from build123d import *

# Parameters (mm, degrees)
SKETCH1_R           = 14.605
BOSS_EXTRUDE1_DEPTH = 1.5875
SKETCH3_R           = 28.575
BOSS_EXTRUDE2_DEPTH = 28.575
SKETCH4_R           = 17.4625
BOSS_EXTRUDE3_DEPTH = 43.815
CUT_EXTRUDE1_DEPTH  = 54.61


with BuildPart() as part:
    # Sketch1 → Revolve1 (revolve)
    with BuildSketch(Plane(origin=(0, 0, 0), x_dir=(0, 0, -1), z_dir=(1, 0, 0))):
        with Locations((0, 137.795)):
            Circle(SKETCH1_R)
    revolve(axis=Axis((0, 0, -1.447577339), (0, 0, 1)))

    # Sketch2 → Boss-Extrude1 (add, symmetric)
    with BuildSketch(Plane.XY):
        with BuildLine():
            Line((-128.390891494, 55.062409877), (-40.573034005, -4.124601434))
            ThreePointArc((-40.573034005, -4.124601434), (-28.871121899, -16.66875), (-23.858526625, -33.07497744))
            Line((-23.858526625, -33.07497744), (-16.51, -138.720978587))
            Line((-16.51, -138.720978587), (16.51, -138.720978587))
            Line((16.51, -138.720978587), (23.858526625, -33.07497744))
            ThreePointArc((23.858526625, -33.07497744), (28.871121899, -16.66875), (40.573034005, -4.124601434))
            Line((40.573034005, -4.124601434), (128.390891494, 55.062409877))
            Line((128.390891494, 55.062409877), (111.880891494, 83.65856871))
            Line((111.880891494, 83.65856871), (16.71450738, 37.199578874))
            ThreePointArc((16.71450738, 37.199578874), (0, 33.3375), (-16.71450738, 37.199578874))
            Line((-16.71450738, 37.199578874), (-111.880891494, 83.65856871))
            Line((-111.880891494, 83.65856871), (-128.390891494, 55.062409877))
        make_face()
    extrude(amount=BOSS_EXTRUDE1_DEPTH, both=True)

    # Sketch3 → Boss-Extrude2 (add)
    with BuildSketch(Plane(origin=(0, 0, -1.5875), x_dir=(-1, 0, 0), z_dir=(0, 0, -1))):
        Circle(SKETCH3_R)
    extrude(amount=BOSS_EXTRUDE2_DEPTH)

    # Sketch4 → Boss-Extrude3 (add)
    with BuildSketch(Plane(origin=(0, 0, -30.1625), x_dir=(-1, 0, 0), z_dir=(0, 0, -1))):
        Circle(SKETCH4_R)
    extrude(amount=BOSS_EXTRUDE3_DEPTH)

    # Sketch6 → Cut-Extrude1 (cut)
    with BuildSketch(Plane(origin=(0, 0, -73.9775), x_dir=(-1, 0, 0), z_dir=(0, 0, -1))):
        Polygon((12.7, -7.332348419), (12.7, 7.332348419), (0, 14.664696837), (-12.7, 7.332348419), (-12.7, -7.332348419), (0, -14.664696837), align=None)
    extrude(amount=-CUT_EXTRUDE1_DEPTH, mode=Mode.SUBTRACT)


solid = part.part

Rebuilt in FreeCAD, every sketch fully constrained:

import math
import FreeCAD as App
import Part
import Sketcher

V = App.Vector
Q = App.Units.Quantity

doc = App.newDocument("Part")
body = doc.addObject("PartDesign::Body", "Body")

sketch1 = body.newObject("Sketcher::SketchObject", "Sketch")
sketch1.AttachmentSupport = (doc.getObject("YZ_Plane"), [""])
sketch1.MapMode = "FlatFace"
sketch1.addGeometry(Part.Circle(V(138, 0, 0), V(0, 0, 1), 15), False)
sketch1.addConstraint(Sketcher.Constraint("PointOnObject", 0, 3, -1))
sketch1.addConstraint(Sketcher.Constraint("Diameter", 0, Q("1.15 in")))
sketch1.addConstraint(Sketcher.Constraint("DistanceX", -1, 1, 0, 3, Q("5.425 in")))
revolution = body.newObject("PartDesign::Revolution", "Revolution")
revolution.Profile = sketch1
revolution.ReferenceAxis = (sketch1, ["V_Axis"])
revolution.Angle = 360

sketch2 = body.newObject("Sketcher::SketchObject", "Sketch001")
sketch2.AttachmentSupport = (doc.getObject("XY_Plane"), [""])
sketch2.MapMode = "FlatFace"
sketch2.addGeometry(Part.LineSegment(V(-128, 55, 0), V(-41, -4, 0)), False)
sketch2.addGeometry(Part.ArcOfCircle(Part.Circle(V(-62, -36, 0), V(0, 0, 1), 38), math.radians(4), math.radians(56)), False)
sketch2.addGeometry(Part.LineSegment(V(-24, -33, 0), V(-17, -139, 0)), False)
sketch2.addGeometry(Part.LineSegment(V(-17, -139, 0), V(17, -139, 0)), False)
sketch2.addGeometry(Part.LineSegment(V(17, -139, 0), V(24, -33, 0)), False)
sketch2.addGeometry(Part.ArcOfCircle(Part.Circle(V(62, -36, 0), V(0, 0, 1), 38), math.radians(124), math.radians(176)), False)
sketch2.addGeometry(Part.LineSegment(V(41, -4, 0), V(128, 55, 0)), False)
sketch2.addGeometry(Part.LineSegment(V(128, 55, 0), V(112, 84, 0)), False)
sketch2.addGeometry(Part.LineSegment(V(112, 84, 0), V(17, 37, 0)), False)
sketch2.addGeometry(Part.ArcOfCircle(Part.Circle(V(0, 71, 0), V(0, 0, 1), 38), math.radians(-116), math.radians(-64)), False)
sketch2.addGeometry(Part.LineSegment(V(-17, 37, 0), V(-112, 84, 0)), False)
sketch2.addGeometry(Part.LineSegment(V(-112, 84, 0), V(-128, 55, 0)), False)
sketch2.addConstraint(Sketcher.Constraint("Tangent", 0, 2, 1, 2))
sketch2.addConstraint(Sketcher.Constraint("Tangent", 1, 1, 2, 1))
sketch2.addConstraint(Sketcher.Constraint("Coincident", 2, 2, 3, 1))
sketch2.addConstraint(Sketcher.Constraint("Coincident", 3, 2, 4, 1))
sketch2.addConstraint(Sketcher.Constraint("Tangent", 4, 2, 5, 2))
sketch2.addConstraint(Sketcher.Constraint("Tangent", 5, 1, 6, 1))
sketch2.addConstraint(Sketcher.Constraint("Coincident", 6, 2, 7, 1))
sketch2.addConstraint(Sketcher.Constraint("Coincident", 7, 2, 8, 1))
sketch2.addConstraint(Sketcher.Constraint("Tangent", 8, 2, 9, 2))
sketch2.addConstraint(Sketcher.Constraint("Tangent", 9, 1, 10, 1))
sketch2.addConstraint(Sketcher.Constraint("Coincident", 10, 2, 11, 1))
sketch2.addConstraint(Sketcher.Constraint("Coincident", 11, 2, 0, 1))
sketch2.addConstraint(Sketcher.Constraint("Horizontal", 3))
sketch2.addConstraint(Sketcher.Constraint("Equal", 1, 5))
sketch2.addConstraint(Sketcher.Constraint("Equal", 5, 9))
sketch2.addConstraint(Sketcher.Constraint("Symmetric", 1, 3, 5, 3, -2))
sketch2.addConstraint(Sketcher.Constraint("Symmetric", 8, 2, 9, 1, -2))
sketch2.addConstraint(Sketcher.Constraint("Symmetric", 6, 2, 11, 2, -2))
sketch2.addConstraint(Sketcher.Constraint("Horizontal", 1, 1, 4, 2))
sketch2.addConstraint(Sketcher.Constraint("Horizontal", 7, 2, 10, 2))
sketch2.addConstraint(Sketcher.Constraint("Equal", 0, 2))
sketch2.addConstraint(Sketcher.Constraint("Equal", 6, 8))
sketch2.addConstraint(Sketcher.Constraint("Radius", 1, Q("1.5 in")))
sketch2.addConstraint(Sketcher.Constraint("DistanceX", 3, 1, 3, 2, Q("1.3 in")))
sketch2.addConstraint(Sketcher.Constraint("Angle", 7, Q("120 deg")))
sketch2.addConstraint(Sketcher.Constraint("Distance", 7, Q("1.3 in")))
sketch2.addConstraint(Sketcher.Constraint("DistanceY", 1, 3, -1, 1, Q("1.40625 in")))
sketch2.addConstraint(Sketcher.Constraint("DistanceY", -1, 1, 9, 3, Q("2.8125 in")))
sketch2.addConstraint(Sketcher.Constraint("DistanceY", 0, 2, -1, 1, 4.124601))
sketch2.addConstraint(Sketcher.Constraint("DistanceY", 2, 2, 1, 1, 105.646001))
pad1 = body.newObject("PartDesign::Pad", "Pad")
pad1.Profile = sketch2
pad1.Length = Q("0.125 in")
pad1.Midplane = True

sketch3 = body.newObject("Sketcher::SketchObject", "Sketch002")
sketch3.AttachmentSupport = (doc.getObject("XY_Plane"), [""])
sketch3.MapMode = "FlatFace"
sketch3.AttachmentOffset = App.Placement(V(0, 0, -0.0625 * 25.4), App.Rotation())
sketch3.addGeometry(Part.Circle(V(0, 0, 0), V(0, 0, 1), 29), False)
sketch3.addConstraint(Sketcher.Constraint("Coincident", 0, 3, -1, 1))
sketch3.addConstraint(Sketcher.Constraint("Diameter", 0, Q("2.25 in")))
pad2 = body.newObject("PartDesign::Pad", "Pad001")
pad2.Profile = sketch3
pad2.Length = Q("1.125 in")
pad2.Reversed = True

sketch4 = body.newObject("Sketcher::SketchObject", "Sketch003")
sketch4.AttachmentSupport = (doc.getObject("XY_Plane"), [""])
sketch4.MapMode = "FlatFace"
sketch4.AttachmentOffset = App.Placement(V(0, 0, -1.1875 * 25.4), App.Rotation())
sketch4.addGeometry(Part.Circle(V(0, 0, 0), V(0, 0, 1), 17), False)
sketch4.addConstraint(Sketcher.Constraint("Coincident", 0, 3, -1, 1))
sketch4.addConstraint(Sketcher.Constraint("Diameter", 0, Q("1.375 in")))
pad3 = body.newObject("PartDesign::Pad", "Pad002")
pad3.Profile = sketch4
pad3.Length = Q("1.725 in")
pad3.Reversed = True

sketch5 = body.newObject("Sketcher::SketchObject", "Sketch004")
sketch5.AttachmentSupport = (doc.getObject("XY_Plane"), [""])
sketch5.MapMode = "FlatFace"
sketch5.AttachmentOffset = App.Placement(V(0, 0, -2.9125 * 25.4), App.Rotation())
sketch5.addGeometry(Part.LineSegment(V(-13, -7, 0), V(-13, 7, 0)), False)
sketch5.addGeometry(Part.LineSegment(V(-13, 7, 0), V(0, 15, 0)), False)
sketch5.addGeometry(Part.LineSegment(V(0, 15, 0), V(13, 7, 0)), False)
sketch5.addGeometry(Part.LineSegment(V(13, 7, 0), V(13, -7, 0)), False)
sketch5.addGeometry(Part.LineSegment(V(13, -7, 0), V(0, -15, 0)), False)
sketch5.addGeometry(Part.LineSegment(V(0, -15, 0), V(-13, -7, 0)), False)
sketch5.addConstraint(Sketcher.Constraint("Coincident", 0, 2, 1, 1))
sketch5.addConstraint(Sketcher.Constraint("Coincident", 1, 2, 2, 1))
sketch5.addConstraint(Sketcher.Constraint("Coincident", 2, 2, 3, 1))
sketch5.addConstraint(Sketcher.Constraint("Coincident", 3, 2, 4, 1))
sketch5.addConstraint(Sketcher.Constraint("Coincident", 4, 2, 5, 1))
sketch5.addConstraint(Sketcher.Constraint("Coincident", 5, 2, 0, 1))
sketch5.addConstraint(Sketcher.Constraint("Vertical", 0))
sketch5.addConstraint(Sketcher.Constraint("Vertical", 3))
sketch5.addConstraint(Sketcher.Constraint("Symmetric", 0, 2, 3, 2, -1, 1))
sketch5.addConstraint(Sketcher.Constraint("Symmetric", 1, 2, 4, 2, -1, 1))
sketch5.addConstraint(Sketcher.Constraint("PointOnObject", 1, 2, -2))
sketch5.addConstraint(Sketcher.Constraint("Parallel", 2, 5))
sketch5.addConstraint(Sketcher.Constraint("Horizontal", 0, 2, 2, 2))
sketch5.addConstraint(Sketcher.Constraint("Angle", 1, Q("30 deg")))
sketch5.addConstraint(Sketcher.Constraint("DistanceX", 0, 2, 2, 2, Q("1 in")))
sketch5.addConstraint(Sketcher.Constraint("DistanceY", 0, 1, 0, 2, 14.664697))
pocket1 = body.newObject("PartDesign::Pocket", "Pocket")
pocket1.Profile = sketch5
pocket1.Length = Q("2.15 in")
pocket1.Reversed = True

doc.recompute()
